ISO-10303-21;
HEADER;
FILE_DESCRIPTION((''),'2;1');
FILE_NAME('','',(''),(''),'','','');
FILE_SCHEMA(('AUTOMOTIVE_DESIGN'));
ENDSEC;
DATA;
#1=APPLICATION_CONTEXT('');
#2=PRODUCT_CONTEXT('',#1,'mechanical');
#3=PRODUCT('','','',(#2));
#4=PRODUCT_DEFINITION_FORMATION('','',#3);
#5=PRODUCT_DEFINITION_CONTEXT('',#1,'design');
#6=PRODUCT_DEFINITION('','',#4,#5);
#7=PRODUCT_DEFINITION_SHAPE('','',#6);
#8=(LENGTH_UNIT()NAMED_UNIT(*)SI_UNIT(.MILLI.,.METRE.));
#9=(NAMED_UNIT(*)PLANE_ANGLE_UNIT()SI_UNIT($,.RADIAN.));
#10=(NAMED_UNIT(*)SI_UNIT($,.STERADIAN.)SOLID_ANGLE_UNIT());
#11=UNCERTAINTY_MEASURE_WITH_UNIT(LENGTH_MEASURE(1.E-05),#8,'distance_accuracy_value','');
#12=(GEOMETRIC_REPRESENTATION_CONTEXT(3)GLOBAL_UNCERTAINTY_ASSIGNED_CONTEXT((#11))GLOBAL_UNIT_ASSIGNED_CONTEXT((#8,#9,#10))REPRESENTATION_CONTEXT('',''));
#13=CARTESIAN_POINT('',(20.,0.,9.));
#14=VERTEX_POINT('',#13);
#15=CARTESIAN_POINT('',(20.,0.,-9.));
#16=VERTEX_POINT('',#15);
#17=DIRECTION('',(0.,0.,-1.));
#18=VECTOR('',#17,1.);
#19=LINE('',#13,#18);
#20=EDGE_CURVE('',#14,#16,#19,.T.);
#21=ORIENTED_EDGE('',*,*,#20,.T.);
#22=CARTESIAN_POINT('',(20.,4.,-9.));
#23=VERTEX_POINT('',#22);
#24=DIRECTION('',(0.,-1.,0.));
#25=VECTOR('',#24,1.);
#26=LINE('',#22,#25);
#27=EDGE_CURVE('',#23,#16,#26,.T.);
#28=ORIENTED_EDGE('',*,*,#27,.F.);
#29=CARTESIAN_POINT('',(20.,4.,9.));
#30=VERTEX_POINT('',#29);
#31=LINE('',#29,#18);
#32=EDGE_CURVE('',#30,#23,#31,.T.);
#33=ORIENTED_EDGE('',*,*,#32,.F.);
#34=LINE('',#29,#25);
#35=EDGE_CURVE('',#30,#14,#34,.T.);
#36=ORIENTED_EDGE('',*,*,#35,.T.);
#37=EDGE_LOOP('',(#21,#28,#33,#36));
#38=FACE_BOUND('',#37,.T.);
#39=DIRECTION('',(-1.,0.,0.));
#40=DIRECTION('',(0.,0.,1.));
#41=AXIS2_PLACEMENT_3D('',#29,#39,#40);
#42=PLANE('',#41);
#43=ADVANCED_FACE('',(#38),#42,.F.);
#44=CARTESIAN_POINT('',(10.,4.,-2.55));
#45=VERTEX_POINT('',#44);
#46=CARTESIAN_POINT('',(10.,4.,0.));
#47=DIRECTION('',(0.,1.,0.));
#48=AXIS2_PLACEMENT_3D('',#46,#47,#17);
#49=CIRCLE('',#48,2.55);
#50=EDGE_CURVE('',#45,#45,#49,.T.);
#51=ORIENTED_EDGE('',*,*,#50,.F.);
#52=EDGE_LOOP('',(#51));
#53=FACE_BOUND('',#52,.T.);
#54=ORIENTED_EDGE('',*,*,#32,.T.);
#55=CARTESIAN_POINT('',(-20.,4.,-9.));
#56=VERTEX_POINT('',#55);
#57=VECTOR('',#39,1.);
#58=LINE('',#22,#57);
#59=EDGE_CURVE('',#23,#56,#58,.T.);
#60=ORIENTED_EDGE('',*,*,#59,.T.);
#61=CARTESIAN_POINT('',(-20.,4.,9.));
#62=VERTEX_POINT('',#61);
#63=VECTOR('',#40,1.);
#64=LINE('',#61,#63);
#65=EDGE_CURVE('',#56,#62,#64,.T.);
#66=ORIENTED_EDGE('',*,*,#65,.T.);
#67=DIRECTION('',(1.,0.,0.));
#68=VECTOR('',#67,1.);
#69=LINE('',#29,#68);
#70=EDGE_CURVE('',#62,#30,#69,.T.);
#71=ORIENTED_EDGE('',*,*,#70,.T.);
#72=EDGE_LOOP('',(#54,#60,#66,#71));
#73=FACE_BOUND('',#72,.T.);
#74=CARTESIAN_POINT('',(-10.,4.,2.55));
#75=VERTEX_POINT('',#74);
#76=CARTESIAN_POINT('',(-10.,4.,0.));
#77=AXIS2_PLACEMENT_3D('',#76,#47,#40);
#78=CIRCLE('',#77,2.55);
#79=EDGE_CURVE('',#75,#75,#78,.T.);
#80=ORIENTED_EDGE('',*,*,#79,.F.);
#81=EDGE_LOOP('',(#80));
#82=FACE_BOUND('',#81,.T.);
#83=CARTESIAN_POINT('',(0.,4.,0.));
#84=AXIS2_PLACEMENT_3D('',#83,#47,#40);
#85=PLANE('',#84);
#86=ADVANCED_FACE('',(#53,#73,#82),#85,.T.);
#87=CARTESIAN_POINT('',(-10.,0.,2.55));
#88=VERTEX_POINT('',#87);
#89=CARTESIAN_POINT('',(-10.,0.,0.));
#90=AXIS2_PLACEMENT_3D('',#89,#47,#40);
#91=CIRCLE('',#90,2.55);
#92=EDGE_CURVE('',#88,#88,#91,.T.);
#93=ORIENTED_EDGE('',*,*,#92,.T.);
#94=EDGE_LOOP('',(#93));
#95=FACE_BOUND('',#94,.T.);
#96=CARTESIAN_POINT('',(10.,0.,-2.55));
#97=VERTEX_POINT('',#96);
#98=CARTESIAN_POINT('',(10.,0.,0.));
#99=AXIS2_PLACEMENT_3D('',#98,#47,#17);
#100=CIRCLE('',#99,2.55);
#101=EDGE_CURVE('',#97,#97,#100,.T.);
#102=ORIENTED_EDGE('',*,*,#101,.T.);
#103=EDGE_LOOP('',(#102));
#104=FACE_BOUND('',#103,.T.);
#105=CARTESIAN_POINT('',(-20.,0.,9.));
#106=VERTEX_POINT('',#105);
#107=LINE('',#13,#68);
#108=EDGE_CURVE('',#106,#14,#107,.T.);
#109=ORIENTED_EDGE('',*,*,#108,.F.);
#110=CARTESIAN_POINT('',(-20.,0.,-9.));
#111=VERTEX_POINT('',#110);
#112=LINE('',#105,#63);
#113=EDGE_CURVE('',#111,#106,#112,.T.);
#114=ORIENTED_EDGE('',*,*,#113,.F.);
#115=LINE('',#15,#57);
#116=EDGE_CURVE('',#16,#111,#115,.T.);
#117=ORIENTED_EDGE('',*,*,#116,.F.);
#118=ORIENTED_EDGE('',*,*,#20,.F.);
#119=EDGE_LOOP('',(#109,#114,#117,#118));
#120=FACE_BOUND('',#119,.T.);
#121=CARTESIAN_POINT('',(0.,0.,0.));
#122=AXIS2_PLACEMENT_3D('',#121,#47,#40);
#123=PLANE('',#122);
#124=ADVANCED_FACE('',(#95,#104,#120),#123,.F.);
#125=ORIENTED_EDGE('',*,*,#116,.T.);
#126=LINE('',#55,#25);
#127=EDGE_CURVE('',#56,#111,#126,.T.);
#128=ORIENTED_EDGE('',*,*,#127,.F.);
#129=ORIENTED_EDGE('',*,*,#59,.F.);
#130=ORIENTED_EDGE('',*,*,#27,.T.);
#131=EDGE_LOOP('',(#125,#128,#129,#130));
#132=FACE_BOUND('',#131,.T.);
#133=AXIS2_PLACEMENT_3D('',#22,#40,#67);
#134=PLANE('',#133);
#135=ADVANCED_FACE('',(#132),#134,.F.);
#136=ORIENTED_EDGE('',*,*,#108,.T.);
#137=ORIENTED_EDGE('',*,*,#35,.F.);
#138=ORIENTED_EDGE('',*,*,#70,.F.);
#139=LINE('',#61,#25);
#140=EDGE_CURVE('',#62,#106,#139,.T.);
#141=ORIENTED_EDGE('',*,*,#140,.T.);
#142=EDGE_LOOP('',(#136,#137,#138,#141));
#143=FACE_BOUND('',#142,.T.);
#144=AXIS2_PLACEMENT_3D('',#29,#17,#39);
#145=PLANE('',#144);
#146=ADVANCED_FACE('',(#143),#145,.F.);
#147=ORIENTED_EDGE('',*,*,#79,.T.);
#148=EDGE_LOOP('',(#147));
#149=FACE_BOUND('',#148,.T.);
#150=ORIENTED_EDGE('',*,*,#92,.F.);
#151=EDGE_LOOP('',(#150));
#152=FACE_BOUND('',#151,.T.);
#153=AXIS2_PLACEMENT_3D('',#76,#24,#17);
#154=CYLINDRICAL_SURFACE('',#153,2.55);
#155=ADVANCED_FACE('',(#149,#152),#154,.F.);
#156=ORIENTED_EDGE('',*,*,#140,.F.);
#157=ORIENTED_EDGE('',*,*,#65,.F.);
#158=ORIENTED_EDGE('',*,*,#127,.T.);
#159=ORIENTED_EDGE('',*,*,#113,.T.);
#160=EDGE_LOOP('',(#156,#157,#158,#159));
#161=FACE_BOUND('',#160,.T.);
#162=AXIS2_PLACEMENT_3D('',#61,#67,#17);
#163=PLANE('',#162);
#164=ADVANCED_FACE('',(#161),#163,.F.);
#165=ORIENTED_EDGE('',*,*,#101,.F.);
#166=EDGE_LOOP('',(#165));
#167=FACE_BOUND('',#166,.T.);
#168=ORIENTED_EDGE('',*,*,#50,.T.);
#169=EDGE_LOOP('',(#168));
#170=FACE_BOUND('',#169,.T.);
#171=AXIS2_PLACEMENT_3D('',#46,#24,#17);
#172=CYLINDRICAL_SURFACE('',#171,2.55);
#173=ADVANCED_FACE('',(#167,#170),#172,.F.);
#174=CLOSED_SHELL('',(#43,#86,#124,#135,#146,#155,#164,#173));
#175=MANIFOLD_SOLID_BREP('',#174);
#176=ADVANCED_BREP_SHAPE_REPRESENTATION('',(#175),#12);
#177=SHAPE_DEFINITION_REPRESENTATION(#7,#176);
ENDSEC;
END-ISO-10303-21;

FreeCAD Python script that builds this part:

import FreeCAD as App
import Part
import Sketcher

V = App.Vector
Q = App.Units.Quantity


def add_polygon(sketch, points):
    """Adds a closed chain of lines whose ends are joined by coincident constraints."""
    first, n = sketch.GeometryCount, len(points)
    for a, b in zip(points, points[1:] + points[:1]):
        sketch.addGeometry(Part.LineSegment(App.Vector(*a, 0), App.Vector(*b, 0)), False)
    for i in range(n):
        sketch.addConstraint(Sketcher.Constraint("Coincident", first + i, 2, first + (i + 1) % n, 1))

doc = App.newDocument("Part")
body = doc.addObject("PartDesign::Body", "Body")

# Sketch on XZ plane
sketch1 = body.newObject("Sketcher::SketchObject", "Sketch")
sketch1.AttachmentSupport = (doc.getObject("XZ_Plane"), [""])
sketch1.MapMode = "FlatFace"
add_polygon(sketch1, [(-20, -9), (-20, 9), (20, 9), (20, -9)])  # lines 0-3
sketch1.addGeometry(Part.Circle(V(-10, 0, 0), V(0, 0, 1), 2.5), False)  # 4
sketch1.addGeometry(Part.Circle(V(10, 0, 0), V(0, 0, 1), 2.5), False)  # 5
sketch1.addConstraint([
    Sketcher.Constraint("Vertical", 0),
    Sketcher.Constraint("Horizontal", 1),
    Sketcher.Constraint("Vertical", 2),
    Sketcher.Constraint("Horizontal", 3),
    Sketcher.Constraint("Equal", 4, 5),
    Sketcher.Constraint("Symmetric", 4, 3, 5, 3, -1, 1),
    Sketcher.Constraint("Symmetric", 0, 2, 2, 2, -1, 1),
    Sketcher.Constraint("PointOnObject", 4, 3, -1),
    Sketcher.Constraint("Diameter", 4, Q("5.1 mm")),
    Sketcher.Constraint("DistanceX", 1, 1, 1, 2, Q("40 mm")),
    Sketcher.Constraint("DistanceY", 0, 1, 0, 2, Q("18 mm")),
    Sketcher.Constraint("DistanceX", 4, 3, -1, 1, Q("10 mm")),
])
pad1 = body.newObject("PartDesign::Pad", "Pad")
pad1.Profile = sketch1
pad1.Length = 4
pad1.Reversed = True

doc.recompute()
